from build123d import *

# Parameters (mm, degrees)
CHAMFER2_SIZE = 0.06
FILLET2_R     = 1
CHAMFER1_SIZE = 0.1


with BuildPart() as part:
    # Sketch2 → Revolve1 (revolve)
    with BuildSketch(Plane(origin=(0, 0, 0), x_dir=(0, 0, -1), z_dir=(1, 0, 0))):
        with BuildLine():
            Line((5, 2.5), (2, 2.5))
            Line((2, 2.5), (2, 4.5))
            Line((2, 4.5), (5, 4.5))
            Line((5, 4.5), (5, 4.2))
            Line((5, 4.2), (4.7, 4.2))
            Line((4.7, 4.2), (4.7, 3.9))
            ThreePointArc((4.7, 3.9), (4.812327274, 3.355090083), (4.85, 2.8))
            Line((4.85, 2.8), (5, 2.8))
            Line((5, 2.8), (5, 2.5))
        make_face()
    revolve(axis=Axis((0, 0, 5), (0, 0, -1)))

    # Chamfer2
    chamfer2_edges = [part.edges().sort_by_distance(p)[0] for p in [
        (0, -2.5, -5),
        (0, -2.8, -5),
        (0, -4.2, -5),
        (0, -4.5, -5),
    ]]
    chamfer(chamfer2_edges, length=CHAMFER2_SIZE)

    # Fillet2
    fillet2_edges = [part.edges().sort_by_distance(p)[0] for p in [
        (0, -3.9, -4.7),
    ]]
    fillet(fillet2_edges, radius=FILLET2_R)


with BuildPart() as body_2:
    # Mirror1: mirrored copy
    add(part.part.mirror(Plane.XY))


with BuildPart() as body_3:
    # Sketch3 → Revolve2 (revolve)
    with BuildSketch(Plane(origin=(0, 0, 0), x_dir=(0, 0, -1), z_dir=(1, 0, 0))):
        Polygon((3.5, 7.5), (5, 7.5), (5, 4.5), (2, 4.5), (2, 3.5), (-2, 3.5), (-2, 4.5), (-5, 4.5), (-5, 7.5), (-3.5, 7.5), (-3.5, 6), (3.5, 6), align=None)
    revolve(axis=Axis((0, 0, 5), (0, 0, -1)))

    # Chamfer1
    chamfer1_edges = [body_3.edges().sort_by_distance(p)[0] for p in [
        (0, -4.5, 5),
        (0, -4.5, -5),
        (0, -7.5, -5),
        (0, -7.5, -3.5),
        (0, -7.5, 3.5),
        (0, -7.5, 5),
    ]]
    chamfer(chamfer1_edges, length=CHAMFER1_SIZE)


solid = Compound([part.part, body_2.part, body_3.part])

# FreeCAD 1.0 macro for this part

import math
import FreeCAD as App
import Part
import Sketcher

V = App.Vector


def edges_at(feature, points):
    """Names of the edges that pass closest to the given points."""
    edges = feature.Shape.Edges
    near = lambda p: min(range(len(edges)), key=lambda i: edges[i].distToShape(Part.Vertex(*p))[0])
    return sorted({f"Edge{near(p) + 1}" for p in points})

doc = App.newDocument("Part")
body = doc.addObject("PartDesign::Body", "Body")

# Sketch on YZ plane
sketch1 = doc.addObject("Sketcher::SketchObject", "Sketch")
body.addObject(sketch1)
sketch1.AttachmentSupport = (doc.YZ_Plane, [""])
sketch1.MapMode = "FlatFace"
sketch1.addGeometry(Part.LineSegment(V(2.5, -2, 0), V(2.5, -5, 0)), False)
sketch1.addGeometry(Part.LineSegment(V(2.5, -5, 0), V(2.8, -5, 0)), False)
sketch1.addGeometry(Part.LineSegment(V(2.8, -5, 0), V(2.8, -4.85, 0)), False)
sketch1.addGeometry(Part.ArcOfCircle(Part.Circle(V(2.8, -0.74, 0), V(0, 0, 1), 4.11), math.radians(-90), math.radians(-74.47)), False)
sketch1.addGeometry(Part.LineSegment(V(3.9, -4.7, 0), V(4.2, -4.7, 0)), False)
sketch1.addGeometry(Part.LineSegment(V(4.2, -4.7, 0), V(4.2, -5, 0)), False)
sketch1.addGeometry(Part.LineSegment(V(4.2, -5, 0), V(4.5, -5, 0)), False)
sketch1.addGeometry(Part.LineSegment(V(4.5, -5, 0), V(4.5, -2, 0)), False)
sketch1.addGeometry(Part.LineSegment(V(4.5, -2, 0), V(2.5, -2, 0)), False)
sketch1.addConstraint(Sketcher.Constraint("Coincident", 0, 2, 1, 1))
sketch1.addConstraint(Sketcher.Constraint("Coincident", 1, 2, 2, 1))
sketch1.addConstraint(Sketcher.Constraint("Coincident", 2, 2, 3, 1))
sketch1.addConstraint(Sketcher.Constraint("Coincident", 3, 2, 4, 1))
sketch1.addConstraint(Sketcher.Constraint("Coincident", 4, 2, 5, 1))
sketch1.addConstraint(Sketcher.Constraint("Coincident", 5, 2, 6, 1))
sketch1.addConstraint(Sketcher.Constraint("Coincident", 6, 2, 7, 1))
sketch1.addConstraint(Sketcher.Constraint("Coincident", 7, 2, 8, 1))
sketch1.addConstraint(Sketcher.Constraint("Coincident", 8, 2, 0, 1))
sketch1.addConstraint(Sketcher.Constraint("Vertical", 0))
sketch1.addConstraint(Sketcher.Constraint("Horizontal", 1))
sketch1.addConstraint(Sketcher.Constraint("Vertical", 2))
sketch1.addConstraint(Sketcher.Constraint("Horizontal", 4))
sketch1.addConstraint(Sketcher.Constraint("Vertical", 5))
sketch1.addConstraint(Sketcher.Constraint("Horizontal", 6))
sketch1.addConstraint(Sketcher.Constraint("Vertical", 7))
sketch1.addConstraint(Sketcher.Constraint("Horizontal", 8))
sketch1.addConstraint(Sketcher.Constraint("Horizontal", 1, 2, 5, 2))
sketch1.addConstraint(Sketcher.Constraint("Vertical", 3, 3, 1, 2))
sketch1.addConstraint(Sketcher.Constraint("Equal", 1, 4))
sketch1.addConstraint(Sketcher.Constraint("Equal", 4, 6))
sketch1.addConstraint(Sketcher.Constraint("Equal", 6, 5))
sketch1.addConstraint(Sketcher.Constraint("DistanceX", 8, 2, 8, 1, 2.0))
sketch1.addConstraint(Sketcher.Constraint("DistanceY", 0, 2, 0, 1, 3.0))
sketch1.addConstraint(Sketcher.Constraint("DistanceX", 1, 1, 1, 2, 0.3))
sketch1.addConstraint(Sketcher.Constraint("DistanceY", 0, 2, -1, 1, 5.0))
sketch1.addConstraint(Sketcher.Constraint("DistanceY", 2, 1, 2, 2, 0.15))
sketch1.addConstraint(Sketcher.Constraint("DistanceX", -1, 1, 3, 3, 2.8))
revolution = doc.addObject("PartDesign::Revolution", "Revolution")
body.addObject(revolution)
revolution.Profile = sketch1
revolution.ReferenceAxis = (sketch1, ["V_Axis"])
revolution.Angle = 360
doc.recompute()

chamfer = doc.addObject("PartDesign::Chamfer", "Chamfer")
body.addObject(chamfer)
chamfer.Base = (revolution, edges_at(revolution, [
    (0, -2.5, -5),
    (0, -2.8, -5),
    (0, -4.2, -5),
    (0, -4.5, -5),
]))
chamfer.Size = 0.06
doc.recompute()

fillet = doc.addObject("PartDesign::Fillet", "Fillet")
body.addObject(fillet)
fillet.Base = (chamfer, edges_at(chamfer, [(0, -3.9, -4.7)]))
fillet.Radius = 1
body2 = doc.addObject("PartDesign::Body", "Body001")
doc.recompute()

mirroring = doc.addObject("Part::Mirroring", "Mirroring")
mirroring.Source = body
mirroring.Base = V(0, 0, 0)
mirroring.Normal = V(0, 0, 1)
body2.BaseFeature = mirroring
doc.recompute()
body3 = doc.addObject("PartDesign::Body", "Body002")

# Sketch on YZ plane
sketch2 = doc.addObject("Sketcher::SketchObject", "Sketch001")
body3.addObject(sketch2)
sketch2.AttachmentSupport = (doc.getObject("YZ_Plane002"), [""])
sketch2.MapMode = "FlatFace"
sketch2.addGeometry(Part.LineSegment(V(7.5, -5, 0), V(7.5, -3.5, 0)), False)
sketch2.addGeometry(Part.LineSegment(V(7.5, -3.5, 0), V(6, -3.5, 0)), False)
sketch2.addGeometry(Part.LineSegment(V(6, -3.5, 0), V(6, 3.5, 0)), False)
sketch2.addGeometry(Part.LineSegment(V(6, 3.5, 0), V(7.5, 3.5, 0)), False)
sketch2.addGeometry(Part.LineSegment(V(7.5, 3.5, 0), V(7.5, 5, 0)), False)
sketch2.addGeometry(Part.LineSegment(V(7.5, 5, 0), V(4.5, 5, 0)), False)
sketch2.addGeometry(Part.LineSegment(V(4.5, 5, 0), V(4.5, 2, 0)), False)
sketch2.addGeometry(Part.LineSegment(V(4.5, 2, 0), V(3.5, 2, 0)), False)
sketch2.addGeometry(Part.LineSegment(V(3.5, 2, 0), V(3.5, -2, 0)), False)
sketch2.addGeometry(Part.LineSegment(V(3.5, -2, 0), V(4.5, -2, 0)), False)
sketch2.addGeometry(Part.LineSegment(V(4.5, -2, 0), V(4.5, -5, 0)), False)
sketch2.addGeometry(Part.LineSegment(V(4.5, -5, 0), V(7.5, -5, 0)), False)
sketch2.addConstraint(Sketcher.Constraint("Coincident", 0, 2, 1, 1))
sketch2.addConstraint(Sketcher.Constraint("Coincident", 1, 2, 2, 1))
sketch2.addConstraint(Sketcher.Constraint("Coincident", 2, 2, 3, 1))
sketch2.addConstraint(Sketcher.Constraint("Coincident", 3, 2, 4, 1))
sketch2.addConstraint(Sketcher.Constraint("Coincident", 4, 2, 5, 1))
sketch2.addConstraint(Sketcher.Constraint("Coincident", 5, 2, 6, 1))
sketch2.addConstraint(Sketcher.Constraint("Coincident", 6, 2, 7, 1))
sketch2.addConstraint(Sketcher.Constraint("Coincident", 7, 2, 8, 1))
sketch2.addConstraint(Sketcher.Constraint("Coincident", 8, 2, 9, 1))
sketch2.addConstraint(Sketcher.Constraint("Coincident", 9, 2, 10, 1))
sketch2.addConstraint(Sketcher.Constraint("Coincident", 10, 2, 11, 1))
sketch2.addConstraint(Sketcher.Constraint("Coincident", 11, 2, 0, 1))
sketch2.addConstraint(Sketcher.Constraint("Vertical", 0))
sketch2.addConstraint(Sketcher.Constraint("Horizontal", 1))
sketch2.addConstraint(Sketcher.Constraint("Vertical", 2))
sketch2.addConstraint(Sketcher.Constraint("Horizontal", 3))
sketch2.addConstraint(Sketcher.Constraint("Vertical", 4))
sketch2.addConstraint(Sketcher.Constraint("Horizontal", 5))
sketch2.addConstraint(Sketcher.Constraint("Vertical", 6))
sketch2.addConstraint(Sketcher.Constraint("Horizontal", 7))
sketch2.addConstraint(Sketcher.Constraint("Vertical", 8))
sketch2.addConstraint(Sketcher.Constraint("Horizontal", 9))
sketch2.addConstraint(Sketcher.Constraint("Vertical", 10))
sketch2.addConstraint(Sketcher.Constraint("Horizontal", 11))
sketch2.addConstraint(Sketcher.Constraint("Symmetric", 0, 2, 3, 2, -1))
sketch2.addConstraint(Sketcher.Constraint("Symmetric", 6, 2, 9, 2, -1))
sketch2.addConstraint(Sketcher.Constraint("Equal", 3, 0))
sketch2.addConstraint(Sketcher.Constraint("Equal", 0, 4))
sketch2.addConstraint(Sketcher.Constraint("Equal", 11, 6))
sketch2.addConstraint(Sketcher.Constraint("DistanceX", 5, 2, 5, 1, 3.0))
sketch2.addConstraint(Sketcher.Constraint("DistanceX", 7, 2, 7, 1, 1.0))
sketch2.addConstraint(Sketcher.Constraint("DistanceY", 2, 1, 2, 2, 7.0))
sketch2.addConstraint(Sketcher.Constraint("DistanceY", 8, 2, 8, 1, 4.0))
sketch2.addConstraint(Sketcher.Constraint("DistanceX", -1, 1, 1, 2, 6.0))
revolution2 = doc.addObject("PartDesign::Revolution", "Revolution001")
body3.addObject(revolution2)
revolution2.Profile = sketch2
revolution2.ReferenceAxis = (sketch2, ["V_Axis"])
revolution2.Angle = 360
doc.recompute()

chamfer2 = doc.addObject("PartDesign::Chamfer", "Chamfer001")
body3.addObject(chamfer2)
chamfer2.Base = (revolution2, edges_at(revolution2, [
    (0, -4.5, 5),
    (0, -4.5, -5),
    (0, -7.5, -5),
    (0, -7.5, -3.5),
    (0, -7.5, 3.5),
    (0, -7.5, 5),
]))
chamfer2.Size = 0.1
mirroring.Visibility = False

doc.recompute()
